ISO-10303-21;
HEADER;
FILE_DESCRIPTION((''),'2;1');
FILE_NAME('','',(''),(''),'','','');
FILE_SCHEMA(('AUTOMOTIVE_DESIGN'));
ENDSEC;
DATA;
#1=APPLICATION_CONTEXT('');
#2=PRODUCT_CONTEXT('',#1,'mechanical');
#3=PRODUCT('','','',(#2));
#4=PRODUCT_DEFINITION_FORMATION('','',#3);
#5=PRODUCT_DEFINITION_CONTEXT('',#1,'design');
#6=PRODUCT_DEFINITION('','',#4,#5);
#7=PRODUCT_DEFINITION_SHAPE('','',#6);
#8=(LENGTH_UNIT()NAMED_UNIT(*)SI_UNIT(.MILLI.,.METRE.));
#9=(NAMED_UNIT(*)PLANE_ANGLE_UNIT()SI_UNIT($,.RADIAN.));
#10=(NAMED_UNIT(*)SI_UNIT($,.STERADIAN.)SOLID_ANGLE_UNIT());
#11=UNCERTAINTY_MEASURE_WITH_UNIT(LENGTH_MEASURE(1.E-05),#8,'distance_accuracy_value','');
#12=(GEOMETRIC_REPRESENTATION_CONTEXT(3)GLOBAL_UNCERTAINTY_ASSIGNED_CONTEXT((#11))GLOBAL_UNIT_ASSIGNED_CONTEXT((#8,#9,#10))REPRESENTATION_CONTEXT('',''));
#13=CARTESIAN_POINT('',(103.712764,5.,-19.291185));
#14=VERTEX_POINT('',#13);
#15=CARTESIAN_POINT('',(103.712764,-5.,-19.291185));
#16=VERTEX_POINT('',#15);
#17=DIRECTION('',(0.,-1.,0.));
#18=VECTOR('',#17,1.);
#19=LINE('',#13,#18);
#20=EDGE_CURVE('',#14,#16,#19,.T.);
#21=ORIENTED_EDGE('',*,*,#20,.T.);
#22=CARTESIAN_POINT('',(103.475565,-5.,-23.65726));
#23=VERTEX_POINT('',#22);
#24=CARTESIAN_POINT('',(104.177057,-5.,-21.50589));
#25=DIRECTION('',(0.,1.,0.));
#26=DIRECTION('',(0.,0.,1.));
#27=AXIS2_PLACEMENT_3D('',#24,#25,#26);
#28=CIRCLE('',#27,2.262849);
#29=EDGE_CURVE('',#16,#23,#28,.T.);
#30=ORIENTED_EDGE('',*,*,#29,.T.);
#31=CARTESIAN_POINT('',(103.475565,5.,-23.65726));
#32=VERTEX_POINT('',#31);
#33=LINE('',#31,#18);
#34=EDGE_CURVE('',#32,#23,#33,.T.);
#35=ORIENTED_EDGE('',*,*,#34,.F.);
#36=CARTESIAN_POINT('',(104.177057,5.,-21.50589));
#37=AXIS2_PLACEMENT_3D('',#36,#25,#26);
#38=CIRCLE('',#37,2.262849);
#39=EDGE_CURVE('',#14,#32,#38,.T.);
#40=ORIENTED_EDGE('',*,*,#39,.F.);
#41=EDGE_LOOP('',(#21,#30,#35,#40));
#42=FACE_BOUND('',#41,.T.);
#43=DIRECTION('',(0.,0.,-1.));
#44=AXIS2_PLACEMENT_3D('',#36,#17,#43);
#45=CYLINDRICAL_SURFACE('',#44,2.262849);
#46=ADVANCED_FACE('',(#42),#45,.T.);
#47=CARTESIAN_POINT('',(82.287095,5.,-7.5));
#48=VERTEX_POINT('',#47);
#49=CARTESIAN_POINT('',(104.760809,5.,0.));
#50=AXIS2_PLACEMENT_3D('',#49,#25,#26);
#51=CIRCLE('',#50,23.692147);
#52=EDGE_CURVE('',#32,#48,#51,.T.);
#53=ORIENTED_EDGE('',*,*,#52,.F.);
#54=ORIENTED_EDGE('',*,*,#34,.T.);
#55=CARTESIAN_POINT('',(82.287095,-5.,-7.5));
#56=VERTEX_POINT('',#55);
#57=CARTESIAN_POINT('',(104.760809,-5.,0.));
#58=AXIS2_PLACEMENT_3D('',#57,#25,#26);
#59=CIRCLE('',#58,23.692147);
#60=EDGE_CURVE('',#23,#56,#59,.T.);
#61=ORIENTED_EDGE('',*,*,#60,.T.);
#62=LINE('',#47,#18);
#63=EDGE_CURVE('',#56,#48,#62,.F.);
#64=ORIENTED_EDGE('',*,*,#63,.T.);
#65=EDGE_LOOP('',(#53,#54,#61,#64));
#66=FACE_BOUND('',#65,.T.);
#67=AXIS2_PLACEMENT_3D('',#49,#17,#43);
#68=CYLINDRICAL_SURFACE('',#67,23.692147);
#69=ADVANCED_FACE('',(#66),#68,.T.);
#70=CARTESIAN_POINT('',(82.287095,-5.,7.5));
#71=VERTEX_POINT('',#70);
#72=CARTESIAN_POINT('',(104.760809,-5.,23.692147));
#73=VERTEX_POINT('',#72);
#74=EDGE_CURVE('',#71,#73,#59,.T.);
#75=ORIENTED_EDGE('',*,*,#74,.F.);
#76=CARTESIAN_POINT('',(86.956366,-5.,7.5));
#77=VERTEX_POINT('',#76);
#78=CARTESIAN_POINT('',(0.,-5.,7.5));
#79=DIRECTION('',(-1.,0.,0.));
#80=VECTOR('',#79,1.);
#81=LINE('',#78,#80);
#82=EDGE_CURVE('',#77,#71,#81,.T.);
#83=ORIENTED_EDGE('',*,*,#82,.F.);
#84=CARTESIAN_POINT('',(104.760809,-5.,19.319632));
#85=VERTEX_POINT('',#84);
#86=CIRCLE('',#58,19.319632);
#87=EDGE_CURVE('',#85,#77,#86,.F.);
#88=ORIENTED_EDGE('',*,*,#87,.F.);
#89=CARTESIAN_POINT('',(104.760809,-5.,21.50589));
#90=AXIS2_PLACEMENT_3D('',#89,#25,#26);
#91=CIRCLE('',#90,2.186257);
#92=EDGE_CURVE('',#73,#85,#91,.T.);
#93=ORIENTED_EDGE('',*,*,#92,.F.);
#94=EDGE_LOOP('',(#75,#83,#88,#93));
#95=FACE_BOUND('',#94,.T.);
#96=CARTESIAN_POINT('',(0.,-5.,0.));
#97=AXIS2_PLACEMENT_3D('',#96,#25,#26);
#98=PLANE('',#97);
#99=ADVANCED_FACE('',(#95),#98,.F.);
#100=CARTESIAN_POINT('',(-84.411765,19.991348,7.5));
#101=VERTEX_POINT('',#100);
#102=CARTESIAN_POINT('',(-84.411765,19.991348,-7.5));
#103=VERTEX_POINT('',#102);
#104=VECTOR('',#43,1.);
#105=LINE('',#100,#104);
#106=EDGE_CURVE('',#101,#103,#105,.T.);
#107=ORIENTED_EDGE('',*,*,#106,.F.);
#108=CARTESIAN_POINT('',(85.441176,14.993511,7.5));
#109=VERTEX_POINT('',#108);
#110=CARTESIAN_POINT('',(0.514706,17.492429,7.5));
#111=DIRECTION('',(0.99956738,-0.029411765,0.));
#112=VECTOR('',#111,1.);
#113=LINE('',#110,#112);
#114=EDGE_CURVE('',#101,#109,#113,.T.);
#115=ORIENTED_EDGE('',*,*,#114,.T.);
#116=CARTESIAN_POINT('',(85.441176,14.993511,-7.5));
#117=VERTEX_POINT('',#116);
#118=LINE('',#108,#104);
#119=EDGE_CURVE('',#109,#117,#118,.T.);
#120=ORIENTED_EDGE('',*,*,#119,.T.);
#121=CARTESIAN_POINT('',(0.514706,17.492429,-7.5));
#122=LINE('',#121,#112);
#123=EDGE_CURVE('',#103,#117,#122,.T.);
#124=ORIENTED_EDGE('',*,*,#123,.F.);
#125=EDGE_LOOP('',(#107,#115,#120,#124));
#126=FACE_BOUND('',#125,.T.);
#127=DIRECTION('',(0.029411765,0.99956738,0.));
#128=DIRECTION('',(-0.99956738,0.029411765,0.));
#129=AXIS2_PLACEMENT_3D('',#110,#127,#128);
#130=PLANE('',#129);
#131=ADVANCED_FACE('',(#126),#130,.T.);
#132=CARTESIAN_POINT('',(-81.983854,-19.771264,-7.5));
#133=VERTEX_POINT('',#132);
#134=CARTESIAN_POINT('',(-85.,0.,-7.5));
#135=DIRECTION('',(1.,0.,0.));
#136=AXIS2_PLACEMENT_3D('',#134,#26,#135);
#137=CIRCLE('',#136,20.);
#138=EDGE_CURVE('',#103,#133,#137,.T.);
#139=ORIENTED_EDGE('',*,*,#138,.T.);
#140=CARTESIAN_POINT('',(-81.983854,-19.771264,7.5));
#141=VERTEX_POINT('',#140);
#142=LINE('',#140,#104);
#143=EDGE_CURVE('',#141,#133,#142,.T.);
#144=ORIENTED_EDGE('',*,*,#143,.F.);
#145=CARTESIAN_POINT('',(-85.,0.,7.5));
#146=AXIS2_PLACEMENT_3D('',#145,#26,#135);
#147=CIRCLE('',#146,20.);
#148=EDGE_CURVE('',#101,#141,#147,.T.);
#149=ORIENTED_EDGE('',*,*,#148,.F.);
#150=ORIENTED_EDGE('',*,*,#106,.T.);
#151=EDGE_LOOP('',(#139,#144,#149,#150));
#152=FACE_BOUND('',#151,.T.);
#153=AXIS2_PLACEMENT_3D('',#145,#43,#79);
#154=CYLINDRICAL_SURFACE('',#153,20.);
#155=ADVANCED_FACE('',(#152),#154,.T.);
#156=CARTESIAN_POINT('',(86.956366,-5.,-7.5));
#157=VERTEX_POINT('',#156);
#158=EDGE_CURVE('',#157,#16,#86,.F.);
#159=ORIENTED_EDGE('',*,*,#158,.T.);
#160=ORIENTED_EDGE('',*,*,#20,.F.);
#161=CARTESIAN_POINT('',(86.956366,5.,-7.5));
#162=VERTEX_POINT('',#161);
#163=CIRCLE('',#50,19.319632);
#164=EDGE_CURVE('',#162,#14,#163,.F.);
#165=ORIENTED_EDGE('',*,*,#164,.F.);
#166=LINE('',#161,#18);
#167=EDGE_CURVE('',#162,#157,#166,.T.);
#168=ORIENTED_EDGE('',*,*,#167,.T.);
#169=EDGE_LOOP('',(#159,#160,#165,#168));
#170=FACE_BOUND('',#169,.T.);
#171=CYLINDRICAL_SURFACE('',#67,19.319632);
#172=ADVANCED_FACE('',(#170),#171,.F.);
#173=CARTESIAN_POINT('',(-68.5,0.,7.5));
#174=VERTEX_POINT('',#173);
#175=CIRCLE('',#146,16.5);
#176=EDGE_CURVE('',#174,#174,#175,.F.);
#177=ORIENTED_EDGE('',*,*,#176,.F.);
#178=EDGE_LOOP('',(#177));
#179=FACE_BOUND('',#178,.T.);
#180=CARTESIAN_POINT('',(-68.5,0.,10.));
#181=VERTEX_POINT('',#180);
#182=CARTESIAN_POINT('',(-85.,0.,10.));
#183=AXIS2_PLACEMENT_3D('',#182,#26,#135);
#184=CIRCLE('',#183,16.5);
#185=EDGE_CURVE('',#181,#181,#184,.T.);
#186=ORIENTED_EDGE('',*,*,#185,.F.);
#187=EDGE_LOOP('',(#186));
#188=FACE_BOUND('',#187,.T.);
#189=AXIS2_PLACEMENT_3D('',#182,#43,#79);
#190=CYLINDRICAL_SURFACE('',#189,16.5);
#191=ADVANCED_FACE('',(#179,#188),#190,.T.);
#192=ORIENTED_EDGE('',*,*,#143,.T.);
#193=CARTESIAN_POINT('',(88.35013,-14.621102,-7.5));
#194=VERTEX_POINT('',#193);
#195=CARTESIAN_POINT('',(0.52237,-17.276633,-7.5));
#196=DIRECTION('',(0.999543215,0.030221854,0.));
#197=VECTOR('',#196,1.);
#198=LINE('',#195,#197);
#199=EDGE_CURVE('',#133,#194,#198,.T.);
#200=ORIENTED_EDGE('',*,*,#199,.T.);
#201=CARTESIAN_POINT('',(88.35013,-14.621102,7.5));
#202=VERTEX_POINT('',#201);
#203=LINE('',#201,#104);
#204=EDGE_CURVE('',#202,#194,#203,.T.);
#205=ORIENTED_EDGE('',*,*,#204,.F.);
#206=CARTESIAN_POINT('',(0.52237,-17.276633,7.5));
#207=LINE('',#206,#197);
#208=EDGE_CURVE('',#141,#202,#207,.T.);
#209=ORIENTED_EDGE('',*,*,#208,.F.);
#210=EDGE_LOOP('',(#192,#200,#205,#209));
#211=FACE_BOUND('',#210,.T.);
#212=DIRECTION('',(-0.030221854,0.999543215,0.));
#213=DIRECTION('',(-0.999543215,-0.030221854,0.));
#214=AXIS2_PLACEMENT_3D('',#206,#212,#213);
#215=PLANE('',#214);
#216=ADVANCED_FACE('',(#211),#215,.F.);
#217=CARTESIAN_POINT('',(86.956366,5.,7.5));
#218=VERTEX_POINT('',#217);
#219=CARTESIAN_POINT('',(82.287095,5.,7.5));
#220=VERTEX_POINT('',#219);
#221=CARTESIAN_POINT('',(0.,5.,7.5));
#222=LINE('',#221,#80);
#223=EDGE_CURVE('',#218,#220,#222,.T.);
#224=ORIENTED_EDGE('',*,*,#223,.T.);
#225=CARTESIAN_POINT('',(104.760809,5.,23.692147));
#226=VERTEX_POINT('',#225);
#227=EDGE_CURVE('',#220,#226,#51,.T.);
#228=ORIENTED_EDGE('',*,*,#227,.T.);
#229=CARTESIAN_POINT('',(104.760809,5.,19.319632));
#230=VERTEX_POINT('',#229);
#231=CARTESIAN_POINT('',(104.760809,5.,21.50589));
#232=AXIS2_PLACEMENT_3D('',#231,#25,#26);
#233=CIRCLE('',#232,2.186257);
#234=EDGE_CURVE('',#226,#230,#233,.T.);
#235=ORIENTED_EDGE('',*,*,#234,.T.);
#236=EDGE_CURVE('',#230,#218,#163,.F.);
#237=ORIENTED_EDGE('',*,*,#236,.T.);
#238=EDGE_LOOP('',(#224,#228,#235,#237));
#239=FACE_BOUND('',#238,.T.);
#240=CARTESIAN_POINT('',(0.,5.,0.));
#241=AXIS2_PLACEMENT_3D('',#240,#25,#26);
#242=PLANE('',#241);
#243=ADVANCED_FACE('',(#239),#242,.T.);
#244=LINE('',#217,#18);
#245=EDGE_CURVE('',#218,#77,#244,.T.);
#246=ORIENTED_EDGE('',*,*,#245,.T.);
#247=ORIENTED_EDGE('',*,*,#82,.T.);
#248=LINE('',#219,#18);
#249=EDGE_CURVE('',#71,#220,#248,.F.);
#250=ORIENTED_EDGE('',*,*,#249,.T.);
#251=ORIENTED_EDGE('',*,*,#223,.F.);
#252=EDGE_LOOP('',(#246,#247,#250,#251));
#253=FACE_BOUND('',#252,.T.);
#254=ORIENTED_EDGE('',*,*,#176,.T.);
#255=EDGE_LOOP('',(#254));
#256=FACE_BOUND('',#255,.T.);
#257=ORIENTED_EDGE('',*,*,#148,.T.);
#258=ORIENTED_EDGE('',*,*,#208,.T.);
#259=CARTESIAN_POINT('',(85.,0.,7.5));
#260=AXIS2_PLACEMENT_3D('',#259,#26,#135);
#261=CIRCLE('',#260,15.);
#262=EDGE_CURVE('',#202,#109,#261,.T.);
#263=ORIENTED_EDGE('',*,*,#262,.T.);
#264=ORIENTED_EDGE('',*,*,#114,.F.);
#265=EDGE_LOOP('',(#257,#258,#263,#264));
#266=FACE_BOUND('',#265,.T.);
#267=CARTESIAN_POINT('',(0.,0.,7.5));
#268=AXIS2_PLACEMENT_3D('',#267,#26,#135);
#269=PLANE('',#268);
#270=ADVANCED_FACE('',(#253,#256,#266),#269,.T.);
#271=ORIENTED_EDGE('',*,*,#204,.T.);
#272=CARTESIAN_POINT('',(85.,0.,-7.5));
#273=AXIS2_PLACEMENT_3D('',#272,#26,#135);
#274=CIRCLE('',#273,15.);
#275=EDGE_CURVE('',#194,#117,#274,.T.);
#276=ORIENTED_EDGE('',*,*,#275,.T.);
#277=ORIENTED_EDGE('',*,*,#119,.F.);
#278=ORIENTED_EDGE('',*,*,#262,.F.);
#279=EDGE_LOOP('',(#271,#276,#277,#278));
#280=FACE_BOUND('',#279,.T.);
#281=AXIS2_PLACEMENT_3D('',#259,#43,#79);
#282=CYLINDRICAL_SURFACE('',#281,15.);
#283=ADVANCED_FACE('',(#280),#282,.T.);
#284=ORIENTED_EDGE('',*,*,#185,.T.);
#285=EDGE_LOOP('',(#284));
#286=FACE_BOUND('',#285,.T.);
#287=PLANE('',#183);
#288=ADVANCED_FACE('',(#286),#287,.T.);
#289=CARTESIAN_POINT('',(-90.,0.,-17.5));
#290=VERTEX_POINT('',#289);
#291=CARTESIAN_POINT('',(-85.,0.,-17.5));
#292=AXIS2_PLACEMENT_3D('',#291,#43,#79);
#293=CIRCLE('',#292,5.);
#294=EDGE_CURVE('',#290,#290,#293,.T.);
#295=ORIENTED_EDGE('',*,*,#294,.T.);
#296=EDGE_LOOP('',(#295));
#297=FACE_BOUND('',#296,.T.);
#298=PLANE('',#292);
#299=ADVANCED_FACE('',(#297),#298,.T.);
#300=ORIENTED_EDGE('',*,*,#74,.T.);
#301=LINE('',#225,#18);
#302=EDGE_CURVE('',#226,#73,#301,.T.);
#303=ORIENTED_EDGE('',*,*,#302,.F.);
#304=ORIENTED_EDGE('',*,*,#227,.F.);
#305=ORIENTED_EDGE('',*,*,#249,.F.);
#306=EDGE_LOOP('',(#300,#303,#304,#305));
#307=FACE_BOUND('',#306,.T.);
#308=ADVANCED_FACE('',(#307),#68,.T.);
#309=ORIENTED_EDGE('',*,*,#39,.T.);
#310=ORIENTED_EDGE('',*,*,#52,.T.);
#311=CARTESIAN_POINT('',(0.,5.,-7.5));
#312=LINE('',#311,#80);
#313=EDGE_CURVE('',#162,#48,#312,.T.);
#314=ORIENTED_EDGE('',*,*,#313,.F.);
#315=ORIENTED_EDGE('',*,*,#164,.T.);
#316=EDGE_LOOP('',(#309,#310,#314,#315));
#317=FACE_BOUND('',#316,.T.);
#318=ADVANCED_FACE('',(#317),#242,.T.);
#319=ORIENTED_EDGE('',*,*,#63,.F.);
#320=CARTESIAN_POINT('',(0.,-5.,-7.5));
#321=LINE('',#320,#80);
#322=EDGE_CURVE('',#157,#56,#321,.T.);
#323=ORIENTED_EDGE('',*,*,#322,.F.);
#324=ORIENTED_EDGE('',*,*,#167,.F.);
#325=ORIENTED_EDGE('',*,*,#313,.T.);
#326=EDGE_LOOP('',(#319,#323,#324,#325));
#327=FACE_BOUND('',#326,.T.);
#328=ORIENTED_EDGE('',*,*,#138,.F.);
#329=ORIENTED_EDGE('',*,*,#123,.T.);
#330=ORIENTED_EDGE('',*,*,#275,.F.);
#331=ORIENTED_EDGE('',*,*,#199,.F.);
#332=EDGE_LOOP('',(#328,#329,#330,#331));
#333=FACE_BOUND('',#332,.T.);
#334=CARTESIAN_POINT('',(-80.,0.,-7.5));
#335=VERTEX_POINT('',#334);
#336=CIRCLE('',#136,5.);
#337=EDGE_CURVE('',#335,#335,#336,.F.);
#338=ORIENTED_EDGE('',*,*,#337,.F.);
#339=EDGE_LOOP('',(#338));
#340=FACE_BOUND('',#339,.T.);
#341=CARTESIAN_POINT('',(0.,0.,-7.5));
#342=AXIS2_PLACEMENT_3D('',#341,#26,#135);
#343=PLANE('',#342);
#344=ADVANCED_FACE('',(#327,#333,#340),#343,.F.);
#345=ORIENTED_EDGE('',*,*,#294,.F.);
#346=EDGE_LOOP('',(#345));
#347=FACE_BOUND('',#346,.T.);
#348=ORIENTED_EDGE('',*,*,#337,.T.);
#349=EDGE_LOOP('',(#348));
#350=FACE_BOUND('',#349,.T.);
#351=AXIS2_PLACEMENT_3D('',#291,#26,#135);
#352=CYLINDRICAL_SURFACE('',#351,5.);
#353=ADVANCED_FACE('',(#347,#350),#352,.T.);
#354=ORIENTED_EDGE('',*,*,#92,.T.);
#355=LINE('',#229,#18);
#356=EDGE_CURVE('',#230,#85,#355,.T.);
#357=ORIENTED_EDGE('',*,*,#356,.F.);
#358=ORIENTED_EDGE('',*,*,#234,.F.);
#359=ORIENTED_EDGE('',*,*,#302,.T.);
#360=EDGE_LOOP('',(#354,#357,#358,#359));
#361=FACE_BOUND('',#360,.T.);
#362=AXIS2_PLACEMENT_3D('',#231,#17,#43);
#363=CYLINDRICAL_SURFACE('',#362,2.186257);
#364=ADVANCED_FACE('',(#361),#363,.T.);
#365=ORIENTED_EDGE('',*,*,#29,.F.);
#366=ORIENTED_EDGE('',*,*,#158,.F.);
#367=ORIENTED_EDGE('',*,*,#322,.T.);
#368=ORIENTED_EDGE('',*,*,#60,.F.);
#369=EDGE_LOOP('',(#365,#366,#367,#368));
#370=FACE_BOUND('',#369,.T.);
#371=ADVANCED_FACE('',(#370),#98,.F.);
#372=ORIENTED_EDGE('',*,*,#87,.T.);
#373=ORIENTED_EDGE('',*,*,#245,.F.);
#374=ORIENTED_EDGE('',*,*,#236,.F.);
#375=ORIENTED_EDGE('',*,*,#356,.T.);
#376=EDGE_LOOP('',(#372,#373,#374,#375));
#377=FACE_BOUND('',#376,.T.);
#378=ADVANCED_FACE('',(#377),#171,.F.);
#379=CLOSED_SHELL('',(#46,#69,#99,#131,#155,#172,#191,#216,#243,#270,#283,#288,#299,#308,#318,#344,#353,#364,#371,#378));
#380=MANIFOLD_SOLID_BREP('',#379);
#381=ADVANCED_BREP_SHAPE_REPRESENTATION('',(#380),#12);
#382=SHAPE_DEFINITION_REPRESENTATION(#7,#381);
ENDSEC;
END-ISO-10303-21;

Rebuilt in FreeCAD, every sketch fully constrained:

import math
import FreeCAD as App
import Part
import Sketcher

V = App.Vector

doc = App.newDocument("Part")
body = doc.addObject("PartDesign::Body", "Body")

sketch1 = body.newObject("Sketcher::SketchObject", "Sketch")
sketch1.AttachmentSupport = (doc.getObject("XY_Plane"), [""])
sketch1.MapMode = "FlatFace"
sketch1.addGeometry([
    Part.LineSegment(V(-82, -20, 0), V(88, -15, 0)),
    Part.ArcOfCircle(Part.Circle(V(85, 0, 0), V(0, 0, 1), 15), math.radians(-77), math.radians(88)),
    Part.LineSegment(V(85, 15, 0), V(-84, 20, 0)),
    Part.ArcOfCircle(Part.Circle(V(-85, 0, 0), V(0, 0, 1), 20), math.radians(88), math.radians(279)),
], False)
sketch1.addConstraint([
    Sketcher.Constraint("Coincident", 0, 2, 1, 1),
    Sketcher.Constraint("Tangent", 1, 2, 2, 1),
    Sketcher.Constraint("Tangent", 2, 2, 3, 1),
    Sketcher.Constraint("Coincident", 3, 2, 0, 1),
    Sketcher.Constraint("Symmetric", 1, 3, 3, 3, -1, 1),
    Sketcher.Constraint("PointOnObject", 1, 3, -1),
    Sketcher.Constraint("Radius", 1, 15.0),
    Sketcher.Constraint("Radius", 3, 20.0),
    Sketcher.Constraint("DistanceX", -1, 1, 1, 3, 85.0),
    Sketcher.Constraint("DistanceX", -1, 1, 0, 2, 88.35013),
    Sketcher.Constraint("DistanceX", 2, 2, 3, 2, 2.42791),
])
pad1 = body.newObject("PartDesign::Pad", "Pad")
pad1.Profile = sketch1
pad1.Length = 15
pad1.Midplane = True

sketch2 = body.newObject("Sketcher::SketchObject", "Sketch001")
sketch2.AttachmentSupport = (doc.getObject("XY_Plane"), [""])
sketch2.MapMode = "FlatFace"
sketch2.AttachmentOffset = App.Placement(V(0, 0, 7.5), App.Rotation())
sketch2.addGeometry(Part.Circle(V(-85, 0, 0), V(0, 0, 1), 16), False)
sketch2.addConstraint([
    Sketcher.Constraint("PointOnObject", 0, 3, -1),
    Sketcher.Constraint("Diameter", 0, 33.0),
    Sketcher.Constraint("DistanceX", 0, 3, -1, 1, 85.0),
])
pad2 = body.newObject("PartDesign::Pad", "Pad001")
pad2.Profile = sketch2
pad2.Length = 5
pad2.Midplane = True

sketch3 = body.newObject("Sketcher::SketchObject", "Sketch002")
sketch3.AttachmentSupport = (doc.getObject("XY_Plane"), [""])
sketch3.MapMode = "FlatFace"
sketch3.AttachmentOffset = App.Placement(V(0, 0, -7.5), App.Rotation())
sketch3.addGeometry(Part.Circle(V(-85, 0, 0), V(0, 0, 1), 5), False)
sketch3.addConstraint([
    Sketcher.Constraint("PointOnObject", 0, 3, -1),
    Sketcher.Constraint("Diameter", 0, 10.0),
    Sketcher.Constraint("DistanceX", 0, 3, -1, 1, 85.0),
])
pad3 = body.newObject("PartDesign::Pad", "Pad002")
pad3.Profile = sketch3
pad3.Length = 10
pad3.Reversed = True

sketch4 = body.newObject("Sketcher::SketchObject", "Sketch003")
sketch4.AttachmentSupport = (doc.getObject("XZ_Plane"), [""])
sketch4.MapMode = "FlatFace"
sketch4.addGeometry([
    Part.ArcOfCircle(Part.Circle(V(104.8, 0, 0), V(0, 0, 1), 23.7), math.radians(90), math.radians(267)),
    Part.ArcOfCircle(Part.Circle(V(104.8, 21.5, 0), V(0, 0, 1), 2.2), math.radians(-90), math.radians(90)),
    Part.ArcOfCircle(Part.Circle(V(104.8, 0, 0), V(0, 0, 1), 19.3), math.radians(90), math.radians(267)),
    Part.ArcOfCircle(Part.Circle(V(104.2, -21.5, 0), V(0, 0, 1), 2.3), math.radians(-108), math.radians(102)),
], False)
sketch4.addConstraint([
    Sketcher.Constraint("Tangent", 0, 1, 1, 2),
    Sketcher.Constraint("Tangent", 1, 1, 2, 1),
    Sketcher.Constraint("Coincident", 2, 2, 3, 2),
    Sketcher.Constraint("Coincident", 3, 1, 0, 2),
    Sketcher.Constraint("Coincident", 2, 3, 0, 3),
    Sketcher.Constraint("PointOnObject", 0, 3, -1),
    Sketcher.Constraint("Vertical", 0, 3, 1, 3),
    Sketcher.Constraint("Radius", 3, 2.262849),
    Sketcher.Constraint("Radius", 0, 23.692147),
    Sketcher.Constraint("Radius", 1, 2.186257),
    Sketcher.Constraint("DistanceX", 3, 1, 2, 2, 0.237199),
    Sketcher.Constraint("DistanceX", -1, 1, 0, 3, 104.760809),
    Sketcher.Constraint("DistanceY", 3, 3, -1, 1, 21.50589),
])
pad4 = body.newObject("PartDesign::Pad", "Pad003")
pad4.Profile = sketch4
pad4.Length = 10
pad4.Midplane = True

doc.recompute()
